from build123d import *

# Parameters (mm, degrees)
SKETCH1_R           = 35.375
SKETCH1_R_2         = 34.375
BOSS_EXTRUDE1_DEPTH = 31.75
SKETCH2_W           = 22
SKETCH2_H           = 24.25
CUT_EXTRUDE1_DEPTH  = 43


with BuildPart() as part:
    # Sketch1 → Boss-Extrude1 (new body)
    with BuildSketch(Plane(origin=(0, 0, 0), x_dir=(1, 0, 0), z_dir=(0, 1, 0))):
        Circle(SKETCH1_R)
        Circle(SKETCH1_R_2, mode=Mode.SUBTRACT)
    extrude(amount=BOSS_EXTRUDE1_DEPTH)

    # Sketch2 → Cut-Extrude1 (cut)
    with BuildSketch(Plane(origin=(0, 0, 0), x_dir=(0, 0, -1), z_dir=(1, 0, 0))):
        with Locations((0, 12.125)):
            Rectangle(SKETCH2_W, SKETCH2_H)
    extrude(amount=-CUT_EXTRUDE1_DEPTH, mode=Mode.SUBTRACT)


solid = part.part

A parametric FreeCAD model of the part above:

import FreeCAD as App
import Part
import Sketcher
Q = App.Units.Quantity


def add_polygon(sketch, points):
    """Adds a closed chain of lines whose ends are joined by coincident constraints."""
    first, n = sketch.GeometryCount, len(points)
    for a, b in zip(points, points[1:] + points[:1]):
        sketch.addGeometry(Part.LineSegment(App.Vector(*a, 0), App.Vector(*b, 0)), False)
    for i in range(n):
        sketch.addConstraint(Sketcher.Constraint("Coincident", first + i, 2, first + (i + 1) % n, 1))

doc = App.newDocument("Part")
body = doc.addObject("PartDesign::Body", "Body")

# Sketch on XZ plane
sketch1 = body.newObject("Sketcher::SketchObject", "Sketch")
sketch1.AttachmentSupport = (doc.getObject("XZ_Plane"), [""])
sketch1.MapMode = "FlatFace"
sketch1.addGeometry([
    Part.Circle(App.Vector(0, 0, 0), App.Vector(0, 0, 1), 35),
    Part.Circle(App.Vector(0, 0, 0), App.Vector(0, 0, 1), 34),
], False)
sketch1.addConstraint([
    Sketcher.Constraint("Coincident", 0, 3, -1, 1),
    Sketcher.Constraint("Coincident", 1, 3, -1, 1),
    Sketcher.Constraint("Diameter", 0, Q("70.75 mm")),
    Sketcher.Constraint("Diameter", 1, Q("68.75 mm")),
])
pad1 = body.newObject("PartDesign::Pad", "Pad")
pad1.Profile = sketch1
pad1.Length = 31.75
pad1.Reversed = True

# Sketch on YZ plane
sketch2 = body.newObject("Sketcher::SketchObject", "Sketch001")
sketch2.AttachmentSupport = (doc.getObject("YZ_Plane"), [""])
sketch2.MapMode = "FlatFace"
add_polygon(sketch2, [(24, 11), (0, 11), (0, -11), (24, -11)])  # lines 0-3
sketch2.addConstraint([
    Sketcher.Constraint("Horizontal", 0),
    Sketcher.Constraint("Vertical", 1),
    Sketcher.Constraint("Horizontal", 2),
    Sketcher.Constraint("Vertical", 3),
    Sketcher.Constraint("Symmetric", 0, 2, 1, 2, -1, 1),
    Sketcher.Constraint("DistanceY", 1, 2, 1, 1, Q("22 mm")),
    Sketcher.Constraint("DistanceX", 0, 2, 0, 1, Q("24.25 mm")),
])
pocket1 = body.newObject("PartDesign::Pocket", "Pocket")
pocket1.Profile = sketch2
pocket1.Length = 43

doc.recompute()
